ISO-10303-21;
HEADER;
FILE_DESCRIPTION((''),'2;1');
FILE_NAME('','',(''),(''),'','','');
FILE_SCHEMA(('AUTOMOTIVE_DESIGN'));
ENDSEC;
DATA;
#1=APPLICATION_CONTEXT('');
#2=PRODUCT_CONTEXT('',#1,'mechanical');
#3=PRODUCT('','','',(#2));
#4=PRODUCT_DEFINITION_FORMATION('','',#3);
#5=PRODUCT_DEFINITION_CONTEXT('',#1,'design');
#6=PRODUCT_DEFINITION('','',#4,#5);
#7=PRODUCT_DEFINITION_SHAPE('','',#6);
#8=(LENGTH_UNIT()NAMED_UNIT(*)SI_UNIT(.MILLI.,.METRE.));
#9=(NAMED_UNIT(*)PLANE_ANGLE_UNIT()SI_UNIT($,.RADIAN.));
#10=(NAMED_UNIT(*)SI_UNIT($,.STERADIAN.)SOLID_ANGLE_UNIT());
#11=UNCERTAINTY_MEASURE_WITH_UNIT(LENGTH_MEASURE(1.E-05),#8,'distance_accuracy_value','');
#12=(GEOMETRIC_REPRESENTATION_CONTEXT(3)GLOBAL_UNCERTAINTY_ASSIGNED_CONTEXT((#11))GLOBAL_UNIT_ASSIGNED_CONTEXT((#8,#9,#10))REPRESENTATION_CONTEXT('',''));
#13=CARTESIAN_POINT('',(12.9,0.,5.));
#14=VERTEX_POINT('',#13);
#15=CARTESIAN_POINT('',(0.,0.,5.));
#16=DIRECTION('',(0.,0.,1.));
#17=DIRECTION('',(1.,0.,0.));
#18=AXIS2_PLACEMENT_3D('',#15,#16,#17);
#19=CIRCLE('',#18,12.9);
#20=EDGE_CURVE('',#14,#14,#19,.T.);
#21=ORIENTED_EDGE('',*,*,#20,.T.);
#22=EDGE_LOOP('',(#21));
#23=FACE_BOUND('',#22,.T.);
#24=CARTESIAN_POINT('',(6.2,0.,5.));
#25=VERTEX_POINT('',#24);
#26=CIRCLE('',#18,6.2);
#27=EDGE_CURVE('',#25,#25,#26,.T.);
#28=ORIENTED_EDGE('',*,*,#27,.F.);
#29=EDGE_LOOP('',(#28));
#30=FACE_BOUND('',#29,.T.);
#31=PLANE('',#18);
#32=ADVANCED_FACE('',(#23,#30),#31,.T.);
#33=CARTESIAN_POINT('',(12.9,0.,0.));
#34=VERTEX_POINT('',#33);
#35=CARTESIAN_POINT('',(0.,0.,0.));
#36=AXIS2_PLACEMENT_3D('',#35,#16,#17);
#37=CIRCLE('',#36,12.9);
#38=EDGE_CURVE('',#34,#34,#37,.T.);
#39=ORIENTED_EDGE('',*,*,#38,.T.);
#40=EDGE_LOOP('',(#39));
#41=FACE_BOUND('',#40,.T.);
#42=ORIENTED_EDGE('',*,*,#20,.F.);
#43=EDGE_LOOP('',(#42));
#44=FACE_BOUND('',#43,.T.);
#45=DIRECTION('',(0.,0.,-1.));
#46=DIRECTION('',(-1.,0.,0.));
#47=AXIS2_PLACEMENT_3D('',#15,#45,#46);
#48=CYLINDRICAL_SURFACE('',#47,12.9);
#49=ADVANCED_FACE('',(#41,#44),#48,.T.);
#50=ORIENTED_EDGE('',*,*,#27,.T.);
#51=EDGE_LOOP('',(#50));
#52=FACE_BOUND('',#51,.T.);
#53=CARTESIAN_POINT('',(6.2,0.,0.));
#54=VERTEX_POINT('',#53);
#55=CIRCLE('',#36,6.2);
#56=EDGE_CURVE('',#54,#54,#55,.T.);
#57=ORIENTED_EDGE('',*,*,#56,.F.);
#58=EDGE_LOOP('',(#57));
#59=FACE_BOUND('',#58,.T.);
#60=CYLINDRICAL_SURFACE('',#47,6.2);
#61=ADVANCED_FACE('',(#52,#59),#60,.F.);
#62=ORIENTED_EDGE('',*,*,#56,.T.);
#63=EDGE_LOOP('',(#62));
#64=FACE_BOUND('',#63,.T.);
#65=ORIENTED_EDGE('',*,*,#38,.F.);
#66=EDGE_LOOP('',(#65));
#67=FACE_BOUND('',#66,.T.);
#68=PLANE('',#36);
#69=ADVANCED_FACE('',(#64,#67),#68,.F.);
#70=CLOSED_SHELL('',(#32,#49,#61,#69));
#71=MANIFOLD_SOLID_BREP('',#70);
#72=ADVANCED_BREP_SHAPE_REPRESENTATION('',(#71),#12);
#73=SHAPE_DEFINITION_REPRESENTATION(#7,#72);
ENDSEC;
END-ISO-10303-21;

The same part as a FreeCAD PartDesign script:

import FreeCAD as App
import Part
import Sketcher

V = App.Vector
Q = App.Units.Quantity

doc = App.newDocument("Part")
body = doc.addObject("PartDesign::Body", "Body")

# Sketch on XY plane
sketch1 = body.newObject("Sketcher::SketchObject", "Sketch")
sketch1.AttachmentSupport = (doc.getObject("XY_Plane"), [""])
sketch1.MapMode = "FlatFace"
sketch1.addGeometry(Part.Circle(V(0, 0, 0), V(0, 0, 1), 13), False)
sketch1.addGeometry(Part.Circle(V(0, 0, 0), V(0, 0, 1), 6), False)
sketch1.addConstraint(Sketcher.Constraint("Coincident", 0, 3, -1, 1))
sketch1.addConstraint(Sketcher.Constraint("Coincident", 1, 3, -1, 1))
sketch1.addConstraint(Sketcher.Constraint("Diameter", 0, Q("25.8 mm")))
sketch1.addConstraint(Sketcher.Constraint("Diameter", 1, Q("12.4 mm")))
pad1 = body.newObject("PartDesign::Pad", "Pad")
pad1.Profile = sketch1
pad1.Length = 5

doc.recompute()
